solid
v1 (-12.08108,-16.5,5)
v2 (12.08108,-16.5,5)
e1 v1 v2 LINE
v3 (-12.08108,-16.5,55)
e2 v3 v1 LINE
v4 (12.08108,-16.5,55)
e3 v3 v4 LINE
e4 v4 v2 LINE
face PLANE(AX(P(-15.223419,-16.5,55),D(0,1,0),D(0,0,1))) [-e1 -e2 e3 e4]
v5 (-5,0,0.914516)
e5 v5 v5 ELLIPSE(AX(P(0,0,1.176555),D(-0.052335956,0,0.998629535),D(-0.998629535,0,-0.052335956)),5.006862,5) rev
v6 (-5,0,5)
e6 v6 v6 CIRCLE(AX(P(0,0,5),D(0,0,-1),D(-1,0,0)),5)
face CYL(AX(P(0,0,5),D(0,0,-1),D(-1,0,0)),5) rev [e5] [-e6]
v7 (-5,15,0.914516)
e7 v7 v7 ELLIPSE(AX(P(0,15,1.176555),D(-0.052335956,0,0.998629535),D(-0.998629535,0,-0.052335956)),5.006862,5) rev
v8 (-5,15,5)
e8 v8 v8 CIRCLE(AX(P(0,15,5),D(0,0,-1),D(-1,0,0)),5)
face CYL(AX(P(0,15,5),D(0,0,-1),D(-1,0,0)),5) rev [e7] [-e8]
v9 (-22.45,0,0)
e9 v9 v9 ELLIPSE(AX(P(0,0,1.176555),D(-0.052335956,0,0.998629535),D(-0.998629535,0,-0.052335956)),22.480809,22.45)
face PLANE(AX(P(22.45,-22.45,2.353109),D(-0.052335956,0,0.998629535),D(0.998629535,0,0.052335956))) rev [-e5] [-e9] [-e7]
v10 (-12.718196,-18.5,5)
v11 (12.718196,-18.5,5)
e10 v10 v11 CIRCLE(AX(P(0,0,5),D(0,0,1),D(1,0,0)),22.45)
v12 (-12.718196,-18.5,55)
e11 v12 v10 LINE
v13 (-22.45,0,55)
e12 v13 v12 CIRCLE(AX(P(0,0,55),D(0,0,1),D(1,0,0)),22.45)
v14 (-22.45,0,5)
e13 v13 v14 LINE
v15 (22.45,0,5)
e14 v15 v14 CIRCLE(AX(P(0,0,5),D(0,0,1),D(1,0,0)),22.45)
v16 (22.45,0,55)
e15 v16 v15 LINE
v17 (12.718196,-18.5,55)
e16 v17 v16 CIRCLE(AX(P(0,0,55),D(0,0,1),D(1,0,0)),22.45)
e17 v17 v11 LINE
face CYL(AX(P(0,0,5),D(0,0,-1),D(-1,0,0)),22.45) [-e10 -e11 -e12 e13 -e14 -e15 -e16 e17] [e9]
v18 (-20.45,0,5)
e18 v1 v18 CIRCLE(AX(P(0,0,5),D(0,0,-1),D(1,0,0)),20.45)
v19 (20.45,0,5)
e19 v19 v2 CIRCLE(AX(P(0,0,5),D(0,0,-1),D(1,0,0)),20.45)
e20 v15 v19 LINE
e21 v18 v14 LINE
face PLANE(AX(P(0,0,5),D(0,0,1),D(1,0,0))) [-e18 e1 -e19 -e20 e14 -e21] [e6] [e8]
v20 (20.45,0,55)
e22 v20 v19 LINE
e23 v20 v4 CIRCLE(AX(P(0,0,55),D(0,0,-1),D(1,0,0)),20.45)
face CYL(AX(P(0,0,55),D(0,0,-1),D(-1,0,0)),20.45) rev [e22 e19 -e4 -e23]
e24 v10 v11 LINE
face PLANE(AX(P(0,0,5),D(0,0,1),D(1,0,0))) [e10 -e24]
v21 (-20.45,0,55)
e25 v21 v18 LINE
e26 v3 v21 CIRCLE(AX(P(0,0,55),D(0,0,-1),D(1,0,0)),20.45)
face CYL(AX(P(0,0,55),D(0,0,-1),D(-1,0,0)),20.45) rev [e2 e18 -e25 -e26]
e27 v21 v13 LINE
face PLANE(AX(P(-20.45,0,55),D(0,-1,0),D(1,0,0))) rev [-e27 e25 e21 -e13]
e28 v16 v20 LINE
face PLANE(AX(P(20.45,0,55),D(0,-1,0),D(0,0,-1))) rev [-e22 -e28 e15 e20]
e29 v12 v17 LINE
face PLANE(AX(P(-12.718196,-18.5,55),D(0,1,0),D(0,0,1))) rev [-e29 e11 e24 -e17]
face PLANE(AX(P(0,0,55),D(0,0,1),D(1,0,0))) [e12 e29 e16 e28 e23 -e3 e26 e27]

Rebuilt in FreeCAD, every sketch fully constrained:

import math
import FreeCAD as App
import Part
import Sketcher
Q = App.Units.Quantity


def add_polygon(sketch, points):
    """Adds a closed chain of lines whose ends are joined by coincident constraints."""
    first, n = sketch.GeometryCount, len(points)
    for a, b in zip(points, points[1:] + points[:1]):
        sketch.addGeometry(Part.LineSegment(App.Vector(*a, 0), App.Vector(*b, 0)), False)
    for i in range(n):
        sketch.addConstraint(Sketcher.Constraint("Coincident", first + i, 2, first + (i + 1) % n, 1))

doc = App.newDocument("Part")
params = doc.addObject("Spreadsheet::Sheet", "Params")
for row, (alias, value) in enumerate([
    ("sketch1_diameter", "44.9 mm"),
    ("pad1_length", "5 mm"),
    ("sketch2_diameter", "10 mm"),
    ("pocket1_length", "5 mm"),
    ("sketch3_radius", "22.45 mm"),
    ("pad2_length", "50 mm"),
    ("sketch4_width", "2 mm"),
    ("sketch4_radius", "20.45 mm"),
    ("pad3_length", "50 mm"),
    ("sketch5_width", "44.9 mm"),
], start=1):
    params.set(f"A{row}", alias)
    params.set(f"B{row}", "=" + value)
    params.setAlias(f"B{row}", alias)

body = doc.addObject("PartDesign::Body", "Body")

sketch1 = doc.addObject("Sketcher::SketchObject", "Sketch")
body.addObject(sketch1)
sketch1.AttachmentSupport = (doc.XY_Plane, [""])
sketch1.MapMode = "FlatFace"
sketch1.addGeometry(Part.Circle(App.Vector(0, 0, 0), App.Vector(0, 0, 1), 22.45), False)
sketch1.addConstraint([
    Sketcher.Constraint("Coincident", 0, 3, -1, 1),
    Sketcher.Constraint("Diameter", 0, Q("44.9 mm")),
])
sketch1.setExpression("Constraints[1]", "Params.sketch1_diameter")
pad1 = doc.addObject("PartDesign::Pad", "Pad")
body.addObject(pad1)
pad1.Profile = sketch1
pad1.setExpression("Length", "Params.pad1_length")

sketch2 = doc.addObject("Sketcher::SketchObject", "Sketch001")
body.addObject(sketch2)
sketch2.AttachmentSupport = (doc.XY_Plane, [""])
sketch2.MapMode = "FlatFace"
sketch2.addGeometry([
    Part.Circle(App.Vector(0, 0, 0), App.Vector(0, 0, 1), 5),
    Part.Circle(App.Vector(0, 15, 0), App.Vector(0, 0, 1), 5),
], False)
sketch2.addConstraint([
    Sketcher.Constraint("Coincident", 0, 3, -1, 1),
    Sketcher.Constraint("Equal", 0, 1),
    Sketcher.Constraint("PointOnObject", 1, 3, -2),
    Sketcher.Constraint("Diameter", 0, Q("10 mm")),
    Sketcher.Constraint("DistanceY", -1, 1, 1, 3, Q("15 mm")),
])
sketch2.setExpression("Constraints[3]", "Params.sketch2_diameter")
pocket1 = doc.addObject("PartDesign::Pocket", "Pocket")
body.addObject(pocket1)
pocket1.Profile = sketch2
pocket1.setExpression("Length", "Params.pocket1_length")
pocket1.Reversed = True

sketch3 = doc.addObject("Sketcher::SketchObject", "Sketch002")
body.addObject(sketch3)
sketch3.AttachmentSupport = (doc.XY_Plane, [""])
sketch3.MapMode = "FlatFace"
sketch3.AttachmentOffset = App.Placement(App.Vector(0, 0, 5), App.Rotation())
sketch3.addGeometry([
    Part.LineSegment(App.Vector(-12.718196, -18.5, 0), App.Vector(12.718196, -18.5, 0)),
    Part.ArcOfCircle(Part.Circle(App.Vector(0, 0, 0), App.Vector(0, 0, 1), 22.45), math.radians(-55.492643), math.radians(-47.304393)),
    Part.LineSegment(App.Vector(15.223419, -16.5, 0), App.Vector(-15.223419, -16.5, 0)),
    Part.ArcOfCircle(Part.Circle(App.Vector(0, 0, 0), App.Vector(0, 0, 1), 22.45), math.radians(-132.695607), math.radians(-124.507357)),
], False)
sketch3.addConstraint([
    Sketcher.Constraint("Coincident", 0, 2, 1, 1),
    Sketcher.Constraint("Coincident", 1, 2, 2, 1),
    Sketcher.Constraint("Coincident", 2, 2, 3, 1),
    Sketcher.Constraint("Coincident", 3, 2, 0, 1),
    Sketcher.Constraint("Horizontal", 0),
    Sketcher.Constraint("Horizontal", 2),
    Sketcher.Constraint("Coincident", 1, 3, -1, 1),
    Sketcher.Constraint("Coincident", 3, 3, -1, 1),
    Sketcher.Constraint("Equal", 1, 3),
    Sketcher.Constraint("Radius", 1, Q("22.45 mm")),
    Sketcher.Constraint("DistanceY", 0, 2, 1, 2, Q("2 mm")),
    Sketcher.Constraint("DistanceY", 0, 2, -1, 1, Q("18.5 mm")),
])
sketch3.setExpression("Constraints[9]", "Params.sketch3_radius")
pad2 = doc.addObject("PartDesign::Pad", "Pad001")
body.addObject(pad2)
pad2.Profile = sketch3
pad2.setExpression("Length", "Params.pad2_length")

sketch4 = doc.addObject("Sketcher::SketchObject", "Sketch003")
body.addObject(sketch4)
sketch4.AttachmentSupport = (doc.XY_Plane, [""])
sketch4.MapMode = "FlatFace"
sketch4.AttachmentOffset = App.Placement(App.Vector(0, 0, 5), App.Rotation())
sketch4.addGeometry([
    Part.LineSegment(App.Vector(-15.223419, -16.5, 0), App.Vector(-12.08108, -16.5, 0)),
    Part.ArcOfCircle(Part.Circle(App.Vector(0, 0, 0), App.Vector(0, 0, 1), 20.45), math.radians(-132.695607), math.radians(-126.211091)),
    Part.ArcOfCircle(Part.Circle(App.Vector(0, 0, 0), App.Vector(0, 0, 1), 20.45), math.radians(-180), math.radians(-132.695607)),
    Part.LineSegment(App.Vector(-20.45, 0, 0), App.Vector(-22.45, 0, 0)),
    Part.ArcOfCircle(Part.Circle(App.Vector(0, 0, 0), App.Vector(0, 0, 1), 22.45), math.radians(180), math.radians(227.304393)),
    Part.LineSegment(App.Vector(22.45, 0, 0), App.Vector(20.45, 0, 0)),
    Part.ArcOfCircle(Part.Circle(App.Vector(0, 0, 0), App.Vector(0, 0, 1), 20.45), math.radians(-47.304393), math.radians(0)),
    Part.ArcOfCircle(Part.Circle(App.Vector(0, 0, 0), App.Vector(0, 0, 1), 20.45), math.radians(-53.788909), math.radians(-47.304393)),
    Part.LineSegment(App.Vector(12.08108, -16.5, 0), App.Vector(15.223419, -16.5, 0)),
    Part.ArcOfCircle(Part.Circle(App.Vector(0, 0, 0), App.Vector(0, 0, 1), 22.45), math.radians(-47.304393), math.radians(0)),
], False)
sketch4.addConstraint([
    Sketcher.Constraint("Coincident", 0, 2, 1, 2),
    Sketcher.Constraint("Tangent", 1, 1, 2, 2),
    Sketcher.Constraint("Coincident", 2, 1, 3, 1),
    Sketcher.Constraint("Coincident", 3, 2, 4, 1),
    Sketcher.Constraint("Coincident", 4, 2, 0, 1),
    Sketcher.Constraint("Coincident", 5, 2, 6, 2),
    Sketcher.Constraint("Tangent", 6, 1, 7, 2),
    Sketcher.Constraint("Coincident", 7, 1, 8, 1),
    Sketcher.Constraint("Coincident", 8, 2, 9, 1),
    Sketcher.Constraint("Coincident", 9, 2, 5, 1),
    Sketcher.Constraint("Horizontal", 0),
    Sketcher.Constraint("Horizontal", 3),
    Sketcher.Constraint("Horizontal", 5),
    Sketcher.Constraint("Horizontal", 8),
    Sketcher.Constraint("Coincident", 1, 3, -1, 1),
    Sketcher.Constraint("Coincident", 4, 3, -1, 1),
    Sketcher.Constraint("Coincident", 6, 3, -1, 1),
    Sketcher.Constraint("Coincident", 9, 3, -1, 1),
    Sketcher.Constraint("Equal", 1, 2),
    Sketcher.Constraint("Equal", 2, 6),
    Sketcher.Constraint("Equal", 6, 7),
    Sketcher.Constraint("Equal", 4, 9),
    Sketcher.Constraint("PointOnObject", 2, 1, -1),
    Sketcher.Constraint("PointOnObject", 5, 2, -1),
    Sketcher.Constraint("Horizontal", 1, 1, 6, 1),
    Sketcher.Constraint("Horizontal", 4, 2, 7, 1),
    Sketcher.Constraint("DistanceX", 3, 2, 3, 1, Q("2 mm")),
    Sketcher.Constraint("Radius", 1, Q("20.45 mm")),
    Sketcher.Constraint("DistanceY", 0, 2, -1, 1, Q("16.5 mm")),
    Sketcher.Constraint("DistanceX", 1, 1, -1, 1, Q("13.867213 mm")),
])
sketch4.setExpression("Constraints[26]", "Params.sketch4_width")
sketch4.setExpression("Constraints[27]", "Params.sketch4_radius")
pad3 = doc.addObject("PartDesign::Pad", "Pad002")
body.addObject(pad3)
pad3.Profile = sketch4
pad3.setExpression("Length", "Params.pad3_length")

sketch5 = doc.addObject("Sketcher::SketchObject", "Sketch004")
body.addObject(sketch5)
sketch5.AttachmentSupport = (doc.XZ_Plane, [""])
sketch5.MapMode = "FlatFace"
add_polygon(sketch5, [(22.45, 0), (-22.45, 0), (22.45, 2.353109)])
sketch5.addConstraint([
    Sketcher.Constraint("Horizontal", 0),
    Sketcher.Constraint("Vertical", 2),
    Sketcher.Constraint("Symmetric", 0, 2, 2, 2, -1, 1),
    Sketcher.Constraint("Angle", 1, Q("3 deg")),
    Sketcher.Constraint("DistanceX", 0, 2, 0, 1, Q("44.9 mm")),
])
sketch5.setExpression("Constraints[7]", "Params.sketch5_width")
pocket2 = doc.addObject("PartDesign::Pocket", "Pocket001")
body.addObject(pocket2)
pocket2.Profile = sketch5
pocket2.Type = "ThroughAll"
pocket2.Midplane = True

doc.recompute()
